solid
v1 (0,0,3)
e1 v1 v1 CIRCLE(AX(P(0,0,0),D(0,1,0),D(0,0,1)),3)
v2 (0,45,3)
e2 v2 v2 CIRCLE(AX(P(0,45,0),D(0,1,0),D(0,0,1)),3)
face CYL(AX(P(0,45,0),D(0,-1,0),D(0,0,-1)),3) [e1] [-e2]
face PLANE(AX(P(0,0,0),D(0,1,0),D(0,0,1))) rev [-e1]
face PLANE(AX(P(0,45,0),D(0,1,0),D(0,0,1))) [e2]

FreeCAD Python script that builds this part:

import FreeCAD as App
import Part
import Sketcher

V = App.Vector

doc = App.newDocument("Part")
body = doc.addObject("PartDesign::Body", "Body")

sketch1 = body.newObject("Sketcher::SketchObject", "Sketch")
sketch1.AttachmentSupport = (doc.getObject("XZ_Plane"), [""])
sketch1.MapMode = "FlatFace"
sketch1.addGeometry(Part.Circle(V(0, 0, 0), V(0, 0, 1), 3), False)
sketch1.addConstraint([
    Sketcher.Constraint("Coincident", 0, 3, -1, 1),
    Sketcher.Constraint("Diameter", 0, 6.0),
])
pad1 = body.newObject("PartDesign::Pad", "Pad")
pad1.Profile = sketch1
pad1.Length = 45
pad1.Reversed = True

doc.recompute()
